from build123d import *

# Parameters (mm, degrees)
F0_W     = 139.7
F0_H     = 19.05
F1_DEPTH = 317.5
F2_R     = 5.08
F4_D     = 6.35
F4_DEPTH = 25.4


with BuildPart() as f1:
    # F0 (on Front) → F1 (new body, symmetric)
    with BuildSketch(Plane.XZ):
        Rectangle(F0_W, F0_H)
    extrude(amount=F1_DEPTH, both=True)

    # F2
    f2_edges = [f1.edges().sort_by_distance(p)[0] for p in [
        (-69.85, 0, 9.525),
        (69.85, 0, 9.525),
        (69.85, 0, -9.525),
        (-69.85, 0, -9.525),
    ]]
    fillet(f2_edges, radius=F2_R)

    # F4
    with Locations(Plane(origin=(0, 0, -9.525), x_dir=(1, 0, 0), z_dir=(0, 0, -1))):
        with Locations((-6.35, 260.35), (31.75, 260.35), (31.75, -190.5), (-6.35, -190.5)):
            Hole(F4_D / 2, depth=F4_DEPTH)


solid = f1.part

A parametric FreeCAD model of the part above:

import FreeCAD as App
import Part
import Sketcher
Q = App.Units.Quantity


def edges_at(feature, points):
    """Names of the edges that pass closest to the given points."""
    edges = feature.Shape.Edges
    near = lambda p: min(range(len(edges)), key=lambda i: edges[i].distToShape(Part.Vertex(*p))[0])
    return sorted({f"Edge{near(p) + 1}" for p in points})


def add_polygon(sketch, points):
    """Adds a closed chain of lines whose ends are joined by coincident constraints."""
    first, n = sketch.GeometryCount, len(points)
    for a, b in zip(points, points[1:] + points[:1]):
        sketch.addGeometry(Part.LineSegment(App.Vector(*a, 0), App.Vector(*b, 0)), False)
    for i in range(n):
        sketch.addConstraint(Sketcher.Constraint("Coincident", first + i, 2, first + (i + 1) % n, 1))

doc = App.newDocument("Part")
params = doc.addObject("Spreadsheet::Sheet", "Params")
for row, (alias, value) in enumerate([
    ("sketch1_width", "5.5 in"),
    ("sketch1_height", "0.75 in"),
    ("pad1_length", "25 in"),
    ("fillet_radius", "0.2 in"),
    ("sketch2_diameter", "0.25 in"),
    ("hole_diameter", "0.25 in"),
    ("hole_depth", "1 in"),
], start=1):
    params.set(f"A{row}", alias)
    params.set(f"B{row}", "=" + value)
    params.setAlias(f"B{row}", alias)

body = doc.addObject("PartDesign::Body", "Body")

# Sketch on XZ plane
sketch1 = body.newObject("Sketcher::SketchObject", "Sketch")
sketch1.AttachmentSupport = (doc.getObject("XZ_Plane"), [""])
sketch1.MapMode = "FlatFace"
add_polygon(sketch1, [(-70, 10), (-70, -10), (70, -10), (70, 10)])  # lines 0-3
sketch1.addConstraint([
    Sketcher.Constraint("Vertical", 0),
    Sketcher.Constraint("Horizontal", 1),
    Sketcher.Constraint("Vertical", 2),
    Sketcher.Constraint("Horizontal", 3),
    Sketcher.Constraint("Symmetric", 0, 2, 2, 2, -1, 1),
    Sketcher.Constraint("DistanceX", 1, 1, 1, 2, Q("5.5 in")),
    Sketcher.Constraint("DistanceY", 0, 2, 0, 1, Q("0.75 in")),
])
sketch1.setExpression("Constraints[9]", "Params.sketch1_width")
sketch1.setExpression("Constraints[10]", "Params.sketch1_height")
pad1 = body.newObject("PartDesign::Pad", "Pad")
pad1.Profile = sketch1
pad1.setExpression("Length", "Params.pad1_length")
pad1.Midplane = True
doc.recompute()

fillet = body.newObject("PartDesign::Fillet", "Fillet")
fillet.Base = (pad1, edges_at(pad1, [
    (-69.85, 0, 9.525),
    (69.85, 0, 9.525),
    (69.85, 0, -9.525),
    (-69.85, 0, -9.525),
]))
fillet.setExpression("Radius", "Params.fillet_radius")

# Sketch on XY plane
sketch2 = body.newObject("Sketcher::SketchObject", "Sketch001")
sketch2.AttachmentSupport = (doc.getObject("XY_Plane"), [""])
sketch2.MapMode = "FlatFace"
sketch2.AttachmentOffset = App.Placement(App.Vector(0, 0, -0.375 * 25.4), App.Rotation())
sketch2.addGeometry([
    Part.Circle(App.Vector(-6.3, -260.4, 0), App.Vector(0, 0, 1), 3.2),
    Part.Circle(App.Vector(31.8, -260.4, 0), App.Vector(0, 0, 1), 3.2),
    Part.Circle(App.Vector(31.8, 190.5, 0), App.Vector(0, 0, 1), 3.2),
    Part.Circle(App.Vector(-6.3, 190.5, 0), App.Vector(0, 0, 1), 3.2),
], False)
sketch2.addConstraint([
    Sketcher.Constraint("Equal", 0, 1),
    Sketcher.Constraint("Equal", 1, 2),
    Sketcher.Constraint("Equal", 2, 3),
    Sketcher.Constraint("Horizontal", 0, 3, 1, 3),
    Sketcher.Constraint("Horizontal", 2, 3, 3, 3),
    Sketcher.Constraint("Vertical", 1, 3, 2, 3),
    Sketcher.Constraint("Vertical", 0, 3, 3, 3),
    Sketcher.Constraint("Diameter", 0, Q("0.25 in")),
    Sketcher.Constraint("DistanceY", -1, 1, 2, 3, Q("7.5 in")),
    Sketcher.Constraint("DistanceX", 0, 3, 1, 3, Q("1.5 in")),
    Sketcher.Constraint("DistanceX", 0, 3, -1, 1, Q("0.25 in")),
    Sketcher.Constraint("DistanceY", 0, 3, -1, 1, Q("10.25 in")),
])
sketch2.setExpression("Constraints[7]", "Params.sketch2_diameter")
doc.recompute()
hole = body.newObject("PartDesign::Hole", "Hole")
hole.Profile = sketch2
hole.ThreadType = "None"
hole.setExpression("Diameter", "Params.hole_diameter")
hole.DepthType = "Dimension"
hole.setExpression("Depth", "Params.hole_depth")
hole.DrillPoint = "Flat"
hole.Reversed = True

doc.recompute()
